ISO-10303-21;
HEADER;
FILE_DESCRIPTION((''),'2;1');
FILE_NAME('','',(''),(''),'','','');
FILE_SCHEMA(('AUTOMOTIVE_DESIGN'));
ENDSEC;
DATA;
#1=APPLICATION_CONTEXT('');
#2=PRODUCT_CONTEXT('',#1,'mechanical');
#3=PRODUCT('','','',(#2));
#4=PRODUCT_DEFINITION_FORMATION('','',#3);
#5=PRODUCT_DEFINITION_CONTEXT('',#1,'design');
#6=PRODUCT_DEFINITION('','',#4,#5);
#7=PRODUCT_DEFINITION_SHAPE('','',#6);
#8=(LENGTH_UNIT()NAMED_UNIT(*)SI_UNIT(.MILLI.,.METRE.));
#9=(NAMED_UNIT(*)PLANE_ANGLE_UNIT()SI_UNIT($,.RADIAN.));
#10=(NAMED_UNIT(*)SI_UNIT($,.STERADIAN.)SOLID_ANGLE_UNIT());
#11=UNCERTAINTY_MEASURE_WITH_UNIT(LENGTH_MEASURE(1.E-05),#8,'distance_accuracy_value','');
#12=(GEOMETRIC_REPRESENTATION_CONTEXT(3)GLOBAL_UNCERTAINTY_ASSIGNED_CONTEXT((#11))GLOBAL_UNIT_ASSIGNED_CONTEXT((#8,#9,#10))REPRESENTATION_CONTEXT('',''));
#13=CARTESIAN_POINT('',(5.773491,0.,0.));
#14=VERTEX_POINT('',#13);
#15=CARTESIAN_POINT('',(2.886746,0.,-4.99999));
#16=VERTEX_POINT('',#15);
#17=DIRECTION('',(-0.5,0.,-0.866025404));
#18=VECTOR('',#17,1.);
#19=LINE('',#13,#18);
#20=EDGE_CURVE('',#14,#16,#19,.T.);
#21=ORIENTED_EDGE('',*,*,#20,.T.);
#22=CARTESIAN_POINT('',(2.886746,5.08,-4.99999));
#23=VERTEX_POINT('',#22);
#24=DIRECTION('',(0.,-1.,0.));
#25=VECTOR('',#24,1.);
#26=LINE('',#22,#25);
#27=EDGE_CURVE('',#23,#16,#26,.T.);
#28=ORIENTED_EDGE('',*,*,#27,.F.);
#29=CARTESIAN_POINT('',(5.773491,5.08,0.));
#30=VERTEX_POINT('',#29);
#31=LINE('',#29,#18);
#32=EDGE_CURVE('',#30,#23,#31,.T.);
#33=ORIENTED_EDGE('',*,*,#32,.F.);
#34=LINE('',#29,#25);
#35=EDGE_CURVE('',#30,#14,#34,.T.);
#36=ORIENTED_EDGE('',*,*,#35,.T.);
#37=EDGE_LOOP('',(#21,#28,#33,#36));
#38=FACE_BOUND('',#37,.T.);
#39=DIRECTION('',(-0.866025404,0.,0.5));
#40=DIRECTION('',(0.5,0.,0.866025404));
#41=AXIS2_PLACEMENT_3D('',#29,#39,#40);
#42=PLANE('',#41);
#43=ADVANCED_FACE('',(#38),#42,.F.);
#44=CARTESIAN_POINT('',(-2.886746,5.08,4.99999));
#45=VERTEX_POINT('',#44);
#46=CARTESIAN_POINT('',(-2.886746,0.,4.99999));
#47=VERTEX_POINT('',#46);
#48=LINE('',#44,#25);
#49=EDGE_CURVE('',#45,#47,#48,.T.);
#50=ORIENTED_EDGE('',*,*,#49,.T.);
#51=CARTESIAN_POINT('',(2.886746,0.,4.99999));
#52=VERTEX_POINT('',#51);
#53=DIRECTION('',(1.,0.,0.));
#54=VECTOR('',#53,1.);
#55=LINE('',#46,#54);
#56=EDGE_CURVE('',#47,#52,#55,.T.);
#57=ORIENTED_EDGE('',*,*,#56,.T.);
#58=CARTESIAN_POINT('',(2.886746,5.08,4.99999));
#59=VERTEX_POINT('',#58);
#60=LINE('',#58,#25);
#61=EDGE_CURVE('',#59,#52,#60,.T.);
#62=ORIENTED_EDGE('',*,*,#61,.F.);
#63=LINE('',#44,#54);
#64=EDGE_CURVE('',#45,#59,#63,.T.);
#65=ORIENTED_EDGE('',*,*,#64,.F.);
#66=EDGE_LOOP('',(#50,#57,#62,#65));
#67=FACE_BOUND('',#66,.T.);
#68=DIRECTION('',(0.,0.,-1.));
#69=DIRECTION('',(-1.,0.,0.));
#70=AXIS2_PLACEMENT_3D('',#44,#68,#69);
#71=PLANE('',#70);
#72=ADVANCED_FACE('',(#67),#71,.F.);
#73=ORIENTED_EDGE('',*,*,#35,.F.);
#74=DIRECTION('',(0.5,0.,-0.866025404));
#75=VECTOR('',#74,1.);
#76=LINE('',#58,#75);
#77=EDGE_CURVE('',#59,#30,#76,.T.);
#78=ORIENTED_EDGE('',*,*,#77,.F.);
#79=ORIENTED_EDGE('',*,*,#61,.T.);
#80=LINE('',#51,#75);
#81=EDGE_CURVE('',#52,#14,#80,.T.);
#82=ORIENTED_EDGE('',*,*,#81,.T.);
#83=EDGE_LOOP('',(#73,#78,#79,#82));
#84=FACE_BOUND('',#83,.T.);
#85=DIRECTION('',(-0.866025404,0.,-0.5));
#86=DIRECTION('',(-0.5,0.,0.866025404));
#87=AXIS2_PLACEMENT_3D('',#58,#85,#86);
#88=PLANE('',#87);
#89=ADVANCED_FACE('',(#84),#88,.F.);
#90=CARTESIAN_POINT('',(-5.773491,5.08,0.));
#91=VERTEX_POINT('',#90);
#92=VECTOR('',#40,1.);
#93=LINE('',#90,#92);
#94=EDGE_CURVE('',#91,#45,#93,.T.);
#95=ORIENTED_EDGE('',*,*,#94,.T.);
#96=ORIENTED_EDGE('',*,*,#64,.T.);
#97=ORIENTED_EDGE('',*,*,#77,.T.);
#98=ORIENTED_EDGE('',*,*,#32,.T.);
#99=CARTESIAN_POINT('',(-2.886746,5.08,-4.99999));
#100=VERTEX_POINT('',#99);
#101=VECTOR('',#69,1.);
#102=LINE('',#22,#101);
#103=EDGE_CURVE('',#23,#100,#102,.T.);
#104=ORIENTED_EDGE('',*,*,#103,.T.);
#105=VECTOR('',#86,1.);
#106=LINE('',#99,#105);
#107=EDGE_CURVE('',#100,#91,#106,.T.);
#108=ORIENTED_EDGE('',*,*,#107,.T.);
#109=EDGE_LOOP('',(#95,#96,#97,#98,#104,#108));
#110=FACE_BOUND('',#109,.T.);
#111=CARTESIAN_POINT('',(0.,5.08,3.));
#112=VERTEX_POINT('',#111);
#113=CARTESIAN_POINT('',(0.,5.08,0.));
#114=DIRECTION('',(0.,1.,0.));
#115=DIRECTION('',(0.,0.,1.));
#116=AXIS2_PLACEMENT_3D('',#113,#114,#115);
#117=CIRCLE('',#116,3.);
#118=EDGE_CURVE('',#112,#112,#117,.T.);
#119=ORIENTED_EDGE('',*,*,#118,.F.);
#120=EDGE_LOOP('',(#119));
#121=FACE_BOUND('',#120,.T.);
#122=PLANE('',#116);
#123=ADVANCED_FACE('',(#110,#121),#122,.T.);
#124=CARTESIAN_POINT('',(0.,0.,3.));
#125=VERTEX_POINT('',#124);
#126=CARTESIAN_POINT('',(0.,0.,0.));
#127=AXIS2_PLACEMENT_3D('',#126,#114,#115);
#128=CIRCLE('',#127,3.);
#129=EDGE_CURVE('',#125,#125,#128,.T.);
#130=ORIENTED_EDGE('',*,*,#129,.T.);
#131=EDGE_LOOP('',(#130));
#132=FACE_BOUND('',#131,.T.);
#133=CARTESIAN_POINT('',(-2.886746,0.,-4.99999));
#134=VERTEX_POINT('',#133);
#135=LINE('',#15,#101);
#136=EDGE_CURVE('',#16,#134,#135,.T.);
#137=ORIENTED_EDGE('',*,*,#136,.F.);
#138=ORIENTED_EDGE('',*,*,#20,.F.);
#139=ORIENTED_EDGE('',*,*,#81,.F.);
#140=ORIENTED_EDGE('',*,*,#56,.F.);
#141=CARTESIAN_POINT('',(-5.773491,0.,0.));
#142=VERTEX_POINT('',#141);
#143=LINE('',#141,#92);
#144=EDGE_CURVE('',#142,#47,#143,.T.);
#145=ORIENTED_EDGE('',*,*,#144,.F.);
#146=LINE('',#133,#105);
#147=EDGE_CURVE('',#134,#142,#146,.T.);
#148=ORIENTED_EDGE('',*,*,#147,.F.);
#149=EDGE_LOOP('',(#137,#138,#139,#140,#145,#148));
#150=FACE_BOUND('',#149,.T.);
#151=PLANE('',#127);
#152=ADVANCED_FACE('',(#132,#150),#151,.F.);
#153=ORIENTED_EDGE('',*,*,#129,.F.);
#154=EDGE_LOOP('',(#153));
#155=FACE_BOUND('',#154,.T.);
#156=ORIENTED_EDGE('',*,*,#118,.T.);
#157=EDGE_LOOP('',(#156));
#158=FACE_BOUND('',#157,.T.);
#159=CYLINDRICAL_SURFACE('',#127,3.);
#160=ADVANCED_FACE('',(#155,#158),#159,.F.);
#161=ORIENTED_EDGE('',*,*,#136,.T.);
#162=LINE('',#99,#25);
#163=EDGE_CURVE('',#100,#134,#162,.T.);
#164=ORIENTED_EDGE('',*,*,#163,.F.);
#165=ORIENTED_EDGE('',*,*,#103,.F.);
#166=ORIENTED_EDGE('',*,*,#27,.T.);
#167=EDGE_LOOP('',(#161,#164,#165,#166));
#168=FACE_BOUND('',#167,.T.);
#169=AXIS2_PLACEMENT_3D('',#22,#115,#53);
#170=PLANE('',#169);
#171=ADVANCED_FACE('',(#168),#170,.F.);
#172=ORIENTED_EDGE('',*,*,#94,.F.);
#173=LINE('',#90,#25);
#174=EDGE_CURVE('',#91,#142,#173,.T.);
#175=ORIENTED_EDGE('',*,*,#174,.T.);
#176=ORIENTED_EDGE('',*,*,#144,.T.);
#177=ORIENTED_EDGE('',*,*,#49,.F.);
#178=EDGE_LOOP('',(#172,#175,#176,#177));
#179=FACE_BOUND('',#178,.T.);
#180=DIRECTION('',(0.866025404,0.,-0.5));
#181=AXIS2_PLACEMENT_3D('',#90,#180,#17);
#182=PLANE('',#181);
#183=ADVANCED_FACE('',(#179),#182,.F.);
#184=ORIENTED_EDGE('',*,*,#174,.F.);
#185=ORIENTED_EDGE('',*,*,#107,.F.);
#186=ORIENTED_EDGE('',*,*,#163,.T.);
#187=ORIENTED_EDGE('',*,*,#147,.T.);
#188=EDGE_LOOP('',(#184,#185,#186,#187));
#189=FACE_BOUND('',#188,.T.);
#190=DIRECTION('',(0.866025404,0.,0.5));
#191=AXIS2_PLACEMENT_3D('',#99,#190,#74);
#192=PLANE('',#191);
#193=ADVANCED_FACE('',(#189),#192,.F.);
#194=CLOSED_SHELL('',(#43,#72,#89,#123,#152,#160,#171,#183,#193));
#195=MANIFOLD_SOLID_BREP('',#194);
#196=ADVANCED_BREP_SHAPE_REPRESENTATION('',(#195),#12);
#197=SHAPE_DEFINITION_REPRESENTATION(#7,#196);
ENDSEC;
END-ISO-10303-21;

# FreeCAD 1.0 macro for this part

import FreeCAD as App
import Part
import Sketcher
from FreeCAD import Vector
Q = App.Units.Quantity


def add_polygon(sketch, points):
    """Adds a closed chain of lines whose ends are joined by coincident constraints."""
    first, n = sketch.GeometryCount, len(points)
    for a, b in zip(points, points[1:] + points[:1]):
        sketch.addGeometry(Part.LineSegment(App.Vector(*a, 0), App.Vector(*b, 0)), False)
    for i in range(n):
        sketch.addConstraint(Sketcher.Constraint("Coincident", first + i, 2, first + (i + 1) % n, 1))

doc = App.newDocument("Part")
body = doc.addObject("PartDesign::Body", "Body")

# Sketch on XZ plane
sketch1 = doc.addObject("Sketcher::SketchObject", "Sketch")
body.addObject(sketch1)
sketch1.AttachmentSupport = (doc.XZ_Plane, [""])
sketch1.MapMode = "FlatFace"
add_polygon(sketch1, [(3, -5), (-3, -5), (-6, 0), (-3, 5), (3, 5), (6, 0)])  # lines 0-5
sketch1.addConstraint(Sketcher.Constraint("Horizontal", 0))
sketch1.addConstraint(Sketcher.Constraint("Horizontal", 3))
sketch1.addConstraint(Sketcher.Constraint("Symmetric", 0, 2, 3, 2, -1, 1))
sketch1.addConstraint(Sketcher.Constraint("Symmetric", 1, 2, 4, 2, -1, 1))
sketch1.addConstraint(Sketcher.Constraint("PointOnObject", 1, 2, -1))
sketch1.addConstraint(Sketcher.Constraint("Parallel", 2, 5))
sketch1.addConstraint(Sketcher.Constraint("Vertical", 0, 2, 2, 2))
sketch1.addConstraint(Sketcher.Constraint("Angle", 1, Q("120 deg")))
sketch1.addConstraint(Sketcher.Constraint("DistanceX", 0, 2, 0, 1, 5.773491))
sketch1.addConstraint(Sketcher.Constraint("Distance", 1, 5.773491))
pad1 = doc.addObject("PartDesign::Pad", "Pad")
body.addObject(pad1)
pad1.Profile = sketch1
pad1.Length = 5.08
pad1.Reversed = True

# Sketch on XZ plane
sketch2 = doc.addObject("Sketcher::SketchObject", "Sketch001")
body.addObject(sketch2)
sketch2.AttachmentSupport = (doc.XZ_Plane, [""])
sketch2.MapMode = "FlatFace"
sketch2.AttachmentOffset = App.Placement(Vector(0, 0, -5.08), App.Rotation())
sketch2.addGeometry(Part.Circle(Vector(0, 0, 0), Vector(0, 0, 1), 3), False)
sketch2.addConstraint(Sketcher.Constraint("Coincident", 0, 3, -1, 1))
sketch2.addConstraint(Sketcher.Constraint("Diameter", 0, 6.0))
pocket1 = doc.addObject("PartDesign::Pocket", "Pocket")
body.addObject(pocket1)
pocket1.Profile = sketch2
pocket1.Type = "ThroughAll"
pocket1.Reversed = True

doc.recompute()
